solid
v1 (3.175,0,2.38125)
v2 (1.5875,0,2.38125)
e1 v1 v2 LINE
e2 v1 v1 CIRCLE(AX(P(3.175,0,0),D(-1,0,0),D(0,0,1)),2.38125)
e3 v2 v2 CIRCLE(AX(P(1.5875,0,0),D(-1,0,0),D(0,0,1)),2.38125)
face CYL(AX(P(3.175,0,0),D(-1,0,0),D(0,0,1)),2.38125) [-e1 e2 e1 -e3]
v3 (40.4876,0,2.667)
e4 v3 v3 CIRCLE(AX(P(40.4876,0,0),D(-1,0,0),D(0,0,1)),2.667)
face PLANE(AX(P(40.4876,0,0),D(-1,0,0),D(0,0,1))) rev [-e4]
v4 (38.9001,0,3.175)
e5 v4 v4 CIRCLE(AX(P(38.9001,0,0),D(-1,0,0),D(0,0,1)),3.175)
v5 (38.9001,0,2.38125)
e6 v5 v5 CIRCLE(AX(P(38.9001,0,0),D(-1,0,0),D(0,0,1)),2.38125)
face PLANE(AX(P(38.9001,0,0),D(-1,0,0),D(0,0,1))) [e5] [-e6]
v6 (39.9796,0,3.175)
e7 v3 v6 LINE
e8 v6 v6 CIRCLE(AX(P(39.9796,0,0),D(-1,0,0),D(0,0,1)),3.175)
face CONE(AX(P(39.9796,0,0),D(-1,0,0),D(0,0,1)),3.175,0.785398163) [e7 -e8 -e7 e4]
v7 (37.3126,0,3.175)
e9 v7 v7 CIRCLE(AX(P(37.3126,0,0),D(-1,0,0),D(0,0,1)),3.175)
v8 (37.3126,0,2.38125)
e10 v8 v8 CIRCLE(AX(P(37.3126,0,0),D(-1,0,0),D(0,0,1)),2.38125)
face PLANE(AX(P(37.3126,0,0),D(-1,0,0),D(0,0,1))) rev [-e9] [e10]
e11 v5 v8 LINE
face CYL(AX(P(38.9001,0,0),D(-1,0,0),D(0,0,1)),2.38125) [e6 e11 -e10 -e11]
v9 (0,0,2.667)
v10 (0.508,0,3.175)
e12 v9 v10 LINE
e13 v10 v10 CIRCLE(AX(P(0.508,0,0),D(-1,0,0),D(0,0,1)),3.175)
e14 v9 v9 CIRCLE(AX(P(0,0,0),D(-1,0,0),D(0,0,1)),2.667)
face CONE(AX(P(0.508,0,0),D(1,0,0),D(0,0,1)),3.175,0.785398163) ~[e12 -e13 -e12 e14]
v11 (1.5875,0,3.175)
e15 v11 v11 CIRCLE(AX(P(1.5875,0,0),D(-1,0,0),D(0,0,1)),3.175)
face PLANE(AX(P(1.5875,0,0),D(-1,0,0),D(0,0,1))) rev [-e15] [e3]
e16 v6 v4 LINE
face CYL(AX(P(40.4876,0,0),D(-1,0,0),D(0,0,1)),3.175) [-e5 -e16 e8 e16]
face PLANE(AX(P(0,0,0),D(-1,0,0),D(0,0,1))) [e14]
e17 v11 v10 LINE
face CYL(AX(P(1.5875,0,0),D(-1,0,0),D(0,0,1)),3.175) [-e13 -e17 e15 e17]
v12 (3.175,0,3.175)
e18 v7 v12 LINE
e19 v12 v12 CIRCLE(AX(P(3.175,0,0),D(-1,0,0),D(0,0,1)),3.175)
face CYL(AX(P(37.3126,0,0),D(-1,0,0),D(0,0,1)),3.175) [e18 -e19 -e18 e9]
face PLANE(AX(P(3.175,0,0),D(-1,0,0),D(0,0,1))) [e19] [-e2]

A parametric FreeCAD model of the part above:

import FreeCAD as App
import Part
import Sketcher

V = App.Vector
Q = App.Units.Quantity


def edges_at(feature, points):
    """Names of the edges that pass closest to the given points."""
    edges = feature.Shape.Edges
    near = lambda p: min(range(len(edges)), key=lambda i: edges[i].distToShape(Part.Vertex(*p))[0])
    return sorted({f"Edge{near(p) + 1}" for p in points})


def add_polygon(sketch, points):
    """Adds a closed chain of lines whose ends are joined by coincident constraints."""
    first, n = sketch.GeometryCount, len(points)
    for a, b in zip(points, points[1:] + points[:1]):
        sketch.addGeometry(Part.LineSegment(App.Vector(*a, 0), App.Vector(*b, 0)), False)
    for i in range(n):
        sketch.addConstraint(Sketcher.Constraint("Coincident", first + i, 2, first + (i + 1) % n, 1))

doc = App.newDocument("Part")
body = doc.addObject("PartDesign::Body", "Body")

sketch1 = doc.addObject("Sketcher::SketchObject", "Sketch")
body.addObject(sketch1)
sketch1.AttachmentSupport = (doc.XZ_Plane, [""])
sketch1.MapMode = "FlatFace"
add_polygon(sketch1, [(0, 3.2), (0, 0), (40.5, 0), (40.5, 3.2), (38.9, 3.2), (38.9, 2.4), (37.3, 2.4), (37.3, 3.2), (3.2, 3.2), (3.2, 2.4), (1.6, 2.4), (1.6, 3.2)])
sketch1.addConstraint(Sketcher.Constraint("Vertical", 0))
sketch1.addConstraint(Sketcher.Constraint("Horizontal", 1))
sketch1.addConstraint(Sketcher.Constraint("Vertical", 2))
sketch1.addConstraint(Sketcher.Constraint("Horizontal", 3))
sketch1.addConstraint(Sketcher.Constraint("Vertical", 4))
sketch1.addConstraint(Sketcher.Constraint("Horizontal", 5))
sketch1.addConstraint(Sketcher.Constraint("Vertical", 6))
sketch1.addConstraint(Sketcher.Constraint("Horizontal", 7))
sketch1.addConstraint(Sketcher.Constraint("Vertical", 8))
sketch1.addConstraint(Sketcher.Constraint("Horizontal", 9))
sketch1.addConstraint(Sketcher.Constraint("Vertical", 10))
sketch1.addConstraint(Sketcher.Constraint("Horizontal", 11))
sketch1.addConstraint(Sketcher.Constraint("Coincident", 0, 2, -1, 1))
sketch1.addConstraint(Sketcher.Constraint("Horizontal", 3, 2, 6, 2))
sketch1.addConstraint(Sketcher.Constraint("Horizontal", 5, 2, 8, 2))
sketch1.addConstraint(Sketcher.Constraint("Horizontal", 7, 2, 10, 2))
sketch1.addConstraint(Sketcher.Constraint("Equal", 3, 5))
sketch1.addConstraint(Sketcher.Constraint("Equal", 5, 9))
sketch1.addConstraint(Sketcher.Constraint("Equal", 9, 11))
sketch1.addConstraint(Sketcher.Constraint("DistanceX", 1, 1, 1, 2, Q("1.594 in")))
sketch1.addConstraint(Sketcher.Constraint("DistanceX", 3, 2, 3, 1, Q("0.0625 in")))
sketch1.addConstraint(Sketcher.Constraint("DistanceY", 0, 2, 0, 1, Q("0.125 in")))
sketch1.addConstraint(Sketcher.Constraint("DistanceY", 4, 2, 4, 1, Q("0.03125 in")))
revolution = doc.addObject("PartDesign::Revolution", "Revolution")
body.addObject(revolution)
revolution.Profile = sketch1
revolution.ReferenceAxis = (sketch1, ["H_Axis"])
revolution.Angle = 360
doc.recompute()

chamfer = doc.addObject("PartDesign::Chamfer", "Chamfer")
body.addObject(chamfer)
chamfer.Base = (revolution, edges_at(revolution, [(40.488, 0, -3.175), (0, 0, -3.175)]))
chamfer.Size = Q("0.02 in")

doc.recompute()
